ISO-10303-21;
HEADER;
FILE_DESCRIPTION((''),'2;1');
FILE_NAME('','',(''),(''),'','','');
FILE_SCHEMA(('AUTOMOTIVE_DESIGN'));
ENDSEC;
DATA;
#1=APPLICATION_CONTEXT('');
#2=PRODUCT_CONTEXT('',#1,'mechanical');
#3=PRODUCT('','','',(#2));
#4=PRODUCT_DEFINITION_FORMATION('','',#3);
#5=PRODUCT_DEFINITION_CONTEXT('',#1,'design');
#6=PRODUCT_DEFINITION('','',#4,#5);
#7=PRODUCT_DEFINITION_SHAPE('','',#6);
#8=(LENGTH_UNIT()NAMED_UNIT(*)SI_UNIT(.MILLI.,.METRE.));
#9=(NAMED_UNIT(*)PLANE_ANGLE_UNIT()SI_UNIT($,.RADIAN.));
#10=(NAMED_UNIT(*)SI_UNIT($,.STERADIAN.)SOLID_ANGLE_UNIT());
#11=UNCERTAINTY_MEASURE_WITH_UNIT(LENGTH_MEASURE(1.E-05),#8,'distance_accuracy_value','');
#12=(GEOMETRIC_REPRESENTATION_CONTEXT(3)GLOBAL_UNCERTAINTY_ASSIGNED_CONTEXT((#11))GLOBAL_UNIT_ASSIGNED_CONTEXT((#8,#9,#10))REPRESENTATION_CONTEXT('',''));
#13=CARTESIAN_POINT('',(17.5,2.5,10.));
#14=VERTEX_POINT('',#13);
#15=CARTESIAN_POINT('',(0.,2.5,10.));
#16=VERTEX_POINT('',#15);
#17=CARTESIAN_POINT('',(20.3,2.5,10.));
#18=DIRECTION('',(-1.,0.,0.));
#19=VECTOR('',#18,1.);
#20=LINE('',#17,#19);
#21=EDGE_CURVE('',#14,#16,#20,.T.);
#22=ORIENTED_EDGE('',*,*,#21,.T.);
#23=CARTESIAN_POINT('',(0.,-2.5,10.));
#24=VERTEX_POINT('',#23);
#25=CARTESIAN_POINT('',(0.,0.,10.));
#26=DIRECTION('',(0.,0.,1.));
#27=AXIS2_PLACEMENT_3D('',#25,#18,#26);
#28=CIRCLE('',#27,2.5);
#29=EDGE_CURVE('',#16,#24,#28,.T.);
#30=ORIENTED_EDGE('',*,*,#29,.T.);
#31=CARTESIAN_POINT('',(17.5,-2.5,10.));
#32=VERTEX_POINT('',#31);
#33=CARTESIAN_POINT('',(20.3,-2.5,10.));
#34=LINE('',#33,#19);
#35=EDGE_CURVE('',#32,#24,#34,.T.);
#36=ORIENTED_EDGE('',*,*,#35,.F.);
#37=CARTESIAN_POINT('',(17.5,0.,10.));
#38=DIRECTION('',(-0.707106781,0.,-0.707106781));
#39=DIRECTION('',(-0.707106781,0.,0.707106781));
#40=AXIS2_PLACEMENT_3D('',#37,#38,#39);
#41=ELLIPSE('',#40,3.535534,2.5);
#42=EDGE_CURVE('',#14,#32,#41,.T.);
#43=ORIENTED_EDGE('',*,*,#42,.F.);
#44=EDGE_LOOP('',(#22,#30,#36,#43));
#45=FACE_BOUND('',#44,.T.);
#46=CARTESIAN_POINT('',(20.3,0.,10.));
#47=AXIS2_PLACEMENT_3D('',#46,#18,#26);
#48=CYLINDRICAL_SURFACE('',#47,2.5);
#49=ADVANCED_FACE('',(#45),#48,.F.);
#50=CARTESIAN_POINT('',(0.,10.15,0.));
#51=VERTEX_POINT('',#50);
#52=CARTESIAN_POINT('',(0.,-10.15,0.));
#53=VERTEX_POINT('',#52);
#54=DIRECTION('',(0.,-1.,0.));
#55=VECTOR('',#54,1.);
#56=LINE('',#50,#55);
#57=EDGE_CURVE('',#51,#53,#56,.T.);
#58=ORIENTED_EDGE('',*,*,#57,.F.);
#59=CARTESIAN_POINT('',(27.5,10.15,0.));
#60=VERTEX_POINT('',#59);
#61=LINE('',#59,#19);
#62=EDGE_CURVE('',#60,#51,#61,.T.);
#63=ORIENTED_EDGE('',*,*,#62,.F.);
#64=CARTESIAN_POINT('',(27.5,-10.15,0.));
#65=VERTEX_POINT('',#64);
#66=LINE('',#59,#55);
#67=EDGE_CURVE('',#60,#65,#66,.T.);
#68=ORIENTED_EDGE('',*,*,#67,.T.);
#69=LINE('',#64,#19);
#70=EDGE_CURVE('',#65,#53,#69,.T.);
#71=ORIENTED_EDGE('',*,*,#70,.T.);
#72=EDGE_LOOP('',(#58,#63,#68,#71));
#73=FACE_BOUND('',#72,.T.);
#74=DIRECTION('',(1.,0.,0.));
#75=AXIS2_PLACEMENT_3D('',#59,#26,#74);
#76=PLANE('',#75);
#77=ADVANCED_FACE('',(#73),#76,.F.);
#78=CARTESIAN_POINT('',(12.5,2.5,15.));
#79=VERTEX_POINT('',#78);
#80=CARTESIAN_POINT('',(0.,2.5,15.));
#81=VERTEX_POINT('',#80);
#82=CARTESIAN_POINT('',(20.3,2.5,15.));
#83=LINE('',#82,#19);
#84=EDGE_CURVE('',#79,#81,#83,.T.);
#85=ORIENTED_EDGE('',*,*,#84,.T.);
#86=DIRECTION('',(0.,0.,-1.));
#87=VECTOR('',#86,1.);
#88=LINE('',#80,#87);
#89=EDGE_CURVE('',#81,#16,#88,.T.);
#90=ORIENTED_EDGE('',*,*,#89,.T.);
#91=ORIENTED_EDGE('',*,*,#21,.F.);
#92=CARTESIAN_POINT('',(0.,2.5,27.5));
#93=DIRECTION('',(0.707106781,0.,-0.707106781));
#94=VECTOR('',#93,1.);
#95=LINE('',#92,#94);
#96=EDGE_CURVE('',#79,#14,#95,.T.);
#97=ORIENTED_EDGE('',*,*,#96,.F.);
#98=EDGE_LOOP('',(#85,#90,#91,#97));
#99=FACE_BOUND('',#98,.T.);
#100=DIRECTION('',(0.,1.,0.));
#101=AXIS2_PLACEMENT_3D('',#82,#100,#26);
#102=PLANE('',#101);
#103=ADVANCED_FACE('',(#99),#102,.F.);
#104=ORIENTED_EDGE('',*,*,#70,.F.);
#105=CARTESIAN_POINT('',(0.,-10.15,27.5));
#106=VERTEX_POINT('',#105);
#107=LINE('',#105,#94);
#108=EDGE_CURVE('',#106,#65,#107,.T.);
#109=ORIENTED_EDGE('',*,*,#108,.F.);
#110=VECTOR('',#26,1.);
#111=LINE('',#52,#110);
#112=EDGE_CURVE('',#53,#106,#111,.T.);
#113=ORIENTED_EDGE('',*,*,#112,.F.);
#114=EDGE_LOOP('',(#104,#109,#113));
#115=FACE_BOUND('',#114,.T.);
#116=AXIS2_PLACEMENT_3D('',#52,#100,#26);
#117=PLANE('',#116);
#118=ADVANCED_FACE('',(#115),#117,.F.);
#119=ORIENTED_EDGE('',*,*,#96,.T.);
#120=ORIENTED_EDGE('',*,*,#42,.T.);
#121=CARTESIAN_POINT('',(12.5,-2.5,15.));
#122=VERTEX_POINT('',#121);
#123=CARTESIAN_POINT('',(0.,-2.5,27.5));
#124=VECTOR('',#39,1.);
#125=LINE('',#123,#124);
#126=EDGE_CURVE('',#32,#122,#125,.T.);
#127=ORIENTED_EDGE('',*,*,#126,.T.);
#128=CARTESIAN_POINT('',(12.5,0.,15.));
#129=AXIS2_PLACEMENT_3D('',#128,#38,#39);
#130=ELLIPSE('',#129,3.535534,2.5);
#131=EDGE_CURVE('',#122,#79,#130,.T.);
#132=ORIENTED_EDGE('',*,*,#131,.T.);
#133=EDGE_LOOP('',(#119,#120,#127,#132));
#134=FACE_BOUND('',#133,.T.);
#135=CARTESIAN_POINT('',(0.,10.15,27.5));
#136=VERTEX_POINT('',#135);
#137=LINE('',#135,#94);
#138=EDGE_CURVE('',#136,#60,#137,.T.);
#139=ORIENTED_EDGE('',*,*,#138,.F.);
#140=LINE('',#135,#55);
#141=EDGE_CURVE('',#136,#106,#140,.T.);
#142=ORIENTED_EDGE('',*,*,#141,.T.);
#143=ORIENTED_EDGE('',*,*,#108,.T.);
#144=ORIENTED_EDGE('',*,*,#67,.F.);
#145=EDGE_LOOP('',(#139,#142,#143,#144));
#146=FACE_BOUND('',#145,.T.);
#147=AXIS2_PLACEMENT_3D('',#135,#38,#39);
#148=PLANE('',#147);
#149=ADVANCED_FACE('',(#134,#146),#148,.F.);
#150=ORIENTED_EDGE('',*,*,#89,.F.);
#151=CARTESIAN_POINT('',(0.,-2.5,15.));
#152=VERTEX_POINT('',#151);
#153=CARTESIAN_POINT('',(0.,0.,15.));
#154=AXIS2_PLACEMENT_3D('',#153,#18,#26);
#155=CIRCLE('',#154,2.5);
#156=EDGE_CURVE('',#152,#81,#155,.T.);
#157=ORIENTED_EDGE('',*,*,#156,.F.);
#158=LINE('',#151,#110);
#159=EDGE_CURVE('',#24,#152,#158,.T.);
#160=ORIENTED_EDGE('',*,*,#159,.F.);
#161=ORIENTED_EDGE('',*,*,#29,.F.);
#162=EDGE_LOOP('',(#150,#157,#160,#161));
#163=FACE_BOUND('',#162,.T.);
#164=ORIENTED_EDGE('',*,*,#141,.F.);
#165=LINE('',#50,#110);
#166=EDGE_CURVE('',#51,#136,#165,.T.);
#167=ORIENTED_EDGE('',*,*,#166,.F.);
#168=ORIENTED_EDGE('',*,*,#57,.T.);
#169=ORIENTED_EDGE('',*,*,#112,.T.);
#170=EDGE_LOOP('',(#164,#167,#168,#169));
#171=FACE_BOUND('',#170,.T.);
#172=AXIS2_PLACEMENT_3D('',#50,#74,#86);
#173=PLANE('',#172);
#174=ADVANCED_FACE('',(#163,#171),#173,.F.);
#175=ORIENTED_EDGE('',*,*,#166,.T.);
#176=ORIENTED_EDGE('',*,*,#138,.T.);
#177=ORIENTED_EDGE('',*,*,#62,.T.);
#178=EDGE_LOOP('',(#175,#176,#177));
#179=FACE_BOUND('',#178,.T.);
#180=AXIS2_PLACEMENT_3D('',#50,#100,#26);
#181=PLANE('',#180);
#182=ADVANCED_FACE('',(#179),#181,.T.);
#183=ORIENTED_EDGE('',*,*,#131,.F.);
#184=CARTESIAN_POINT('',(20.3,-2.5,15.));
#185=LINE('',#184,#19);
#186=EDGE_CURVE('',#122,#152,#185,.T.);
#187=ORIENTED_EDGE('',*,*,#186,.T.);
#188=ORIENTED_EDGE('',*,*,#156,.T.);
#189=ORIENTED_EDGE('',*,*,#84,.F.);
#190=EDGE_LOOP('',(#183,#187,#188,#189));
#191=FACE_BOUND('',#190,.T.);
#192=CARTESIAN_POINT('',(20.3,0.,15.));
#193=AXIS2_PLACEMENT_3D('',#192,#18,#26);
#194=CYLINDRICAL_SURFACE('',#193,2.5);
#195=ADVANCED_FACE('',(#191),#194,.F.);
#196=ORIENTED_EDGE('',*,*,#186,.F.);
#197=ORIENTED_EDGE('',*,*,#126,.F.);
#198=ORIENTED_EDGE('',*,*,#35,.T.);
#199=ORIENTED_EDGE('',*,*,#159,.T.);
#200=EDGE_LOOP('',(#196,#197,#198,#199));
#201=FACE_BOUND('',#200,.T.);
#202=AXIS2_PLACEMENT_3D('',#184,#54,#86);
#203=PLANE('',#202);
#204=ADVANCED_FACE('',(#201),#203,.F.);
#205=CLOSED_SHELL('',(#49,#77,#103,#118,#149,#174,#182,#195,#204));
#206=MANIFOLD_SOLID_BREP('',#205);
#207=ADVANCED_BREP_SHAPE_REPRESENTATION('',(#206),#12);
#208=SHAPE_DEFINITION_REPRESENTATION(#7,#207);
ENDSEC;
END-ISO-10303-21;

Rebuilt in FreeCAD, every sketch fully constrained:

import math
import FreeCAD as App
import Part
import Sketcher

V = App.Vector


def add_polygon(sketch, points):
    """Adds a closed chain of lines whose ends are joined by coincident constraints."""
    first, n = sketch.GeometryCount, len(points)
    for a, b in zip(points, points[1:] + points[:1]):
        sketch.addGeometry(Part.LineSegment(App.Vector(*a, 0), App.Vector(*b, 0)), False)
    for i in range(n):
        sketch.addConstraint(Sketcher.Constraint("Coincident", first + i, 2, first + (i + 1) % n, 1))

doc = App.newDocument("Part")
body = doc.addObject("PartDesign::Body", "Body")

sketch1 = body.newObject("Sketcher::SketchObject", "Sketch")
sketch1.AttachmentSupport = (doc.getObject("XZ_Plane"), [""])
sketch1.MapMode = "FlatFace"
add_polygon(sketch1, [(0, 0), (0, 27.5), (27.5, 0)])
sketch1.addConstraint(Sketcher.Constraint("Vertical", 0))
sketch1.addConstraint(Sketcher.Constraint("Horizontal", 2))
sketch1.addConstraint(Sketcher.Constraint("Coincident", 2, 2, -1, 1))
sketch1.addConstraint(Sketcher.Constraint("Equal", 2, 0))
sketch1.addConstraint(Sketcher.Constraint("DistanceX", 2, 2, 2, 1, 27.5))
pad1 = body.newObject("PartDesign::Pad", "Pad")
pad1.Profile = sketch1
pad1.Length = 20.3
pad1.Midplane = True

sketch2 = body.newObject("Sketcher::SketchObject", "Sketch001")
sketch2.AttachmentSupport = (doc.getObject("YZ_Plane"), [""])
sketch2.MapMode = "FlatFace"
sketch2.addGeometry(Part.LineSegment(V(-2.5, 10, 0), V(-2.5, 15, 0)), False)
sketch2.addGeometry(Part.ArcOfCircle(Part.Circle(V(0, 15, 0), V(0, 0, 1), 2.5), math.radians(0), math.radians(180)), False)
sketch2.addGeometry(Part.LineSegment(V(2.5, 15, 0), V(2.5, 10, 0)), False)
sketch2.addGeometry(Part.ArcOfCircle(Part.Circle(V(0, 10, 0), V(0, 0, 1), 2.5), math.radians(180), math.radians(360)), False)
sketch2.addConstraint(Sketcher.Constraint("Tangent", 0, 2, 1, 2))
sketch2.addConstraint(Sketcher.Constraint("Tangent", 1, 1, 2, 1))
sketch2.addConstraint(Sketcher.Constraint("Tangent", 2, 2, 3, 2))
sketch2.addConstraint(Sketcher.Constraint("Tangent", 3, 1, 0, 1))
sketch2.addConstraint(Sketcher.Constraint("Vertical", 0))
sketch2.addConstraint(Sketcher.Constraint("Vertical", 2))
sketch2.addConstraint(Sketcher.Constraint("PointOnObject", 1, 3, -2))
sketch2.addConstraint(Sketcher.Constraint("Radius", 1, 2.5))
sketch2.addConstraint(Sketcher.Constraint("DistanceY", 0, 1, 0, 2, 5.0))
sketch2.addConstraint(Sketcher.Constraint("DistanceY", -1, 1, 1, 3, 15.0))
pocket1 = body.newObject("PartDesign::Pocket", "Pocket")
pocket1.Profile = sketch2
pocket1.Length = 20.3
pocket1.Reversed = True

doc.recompute()
